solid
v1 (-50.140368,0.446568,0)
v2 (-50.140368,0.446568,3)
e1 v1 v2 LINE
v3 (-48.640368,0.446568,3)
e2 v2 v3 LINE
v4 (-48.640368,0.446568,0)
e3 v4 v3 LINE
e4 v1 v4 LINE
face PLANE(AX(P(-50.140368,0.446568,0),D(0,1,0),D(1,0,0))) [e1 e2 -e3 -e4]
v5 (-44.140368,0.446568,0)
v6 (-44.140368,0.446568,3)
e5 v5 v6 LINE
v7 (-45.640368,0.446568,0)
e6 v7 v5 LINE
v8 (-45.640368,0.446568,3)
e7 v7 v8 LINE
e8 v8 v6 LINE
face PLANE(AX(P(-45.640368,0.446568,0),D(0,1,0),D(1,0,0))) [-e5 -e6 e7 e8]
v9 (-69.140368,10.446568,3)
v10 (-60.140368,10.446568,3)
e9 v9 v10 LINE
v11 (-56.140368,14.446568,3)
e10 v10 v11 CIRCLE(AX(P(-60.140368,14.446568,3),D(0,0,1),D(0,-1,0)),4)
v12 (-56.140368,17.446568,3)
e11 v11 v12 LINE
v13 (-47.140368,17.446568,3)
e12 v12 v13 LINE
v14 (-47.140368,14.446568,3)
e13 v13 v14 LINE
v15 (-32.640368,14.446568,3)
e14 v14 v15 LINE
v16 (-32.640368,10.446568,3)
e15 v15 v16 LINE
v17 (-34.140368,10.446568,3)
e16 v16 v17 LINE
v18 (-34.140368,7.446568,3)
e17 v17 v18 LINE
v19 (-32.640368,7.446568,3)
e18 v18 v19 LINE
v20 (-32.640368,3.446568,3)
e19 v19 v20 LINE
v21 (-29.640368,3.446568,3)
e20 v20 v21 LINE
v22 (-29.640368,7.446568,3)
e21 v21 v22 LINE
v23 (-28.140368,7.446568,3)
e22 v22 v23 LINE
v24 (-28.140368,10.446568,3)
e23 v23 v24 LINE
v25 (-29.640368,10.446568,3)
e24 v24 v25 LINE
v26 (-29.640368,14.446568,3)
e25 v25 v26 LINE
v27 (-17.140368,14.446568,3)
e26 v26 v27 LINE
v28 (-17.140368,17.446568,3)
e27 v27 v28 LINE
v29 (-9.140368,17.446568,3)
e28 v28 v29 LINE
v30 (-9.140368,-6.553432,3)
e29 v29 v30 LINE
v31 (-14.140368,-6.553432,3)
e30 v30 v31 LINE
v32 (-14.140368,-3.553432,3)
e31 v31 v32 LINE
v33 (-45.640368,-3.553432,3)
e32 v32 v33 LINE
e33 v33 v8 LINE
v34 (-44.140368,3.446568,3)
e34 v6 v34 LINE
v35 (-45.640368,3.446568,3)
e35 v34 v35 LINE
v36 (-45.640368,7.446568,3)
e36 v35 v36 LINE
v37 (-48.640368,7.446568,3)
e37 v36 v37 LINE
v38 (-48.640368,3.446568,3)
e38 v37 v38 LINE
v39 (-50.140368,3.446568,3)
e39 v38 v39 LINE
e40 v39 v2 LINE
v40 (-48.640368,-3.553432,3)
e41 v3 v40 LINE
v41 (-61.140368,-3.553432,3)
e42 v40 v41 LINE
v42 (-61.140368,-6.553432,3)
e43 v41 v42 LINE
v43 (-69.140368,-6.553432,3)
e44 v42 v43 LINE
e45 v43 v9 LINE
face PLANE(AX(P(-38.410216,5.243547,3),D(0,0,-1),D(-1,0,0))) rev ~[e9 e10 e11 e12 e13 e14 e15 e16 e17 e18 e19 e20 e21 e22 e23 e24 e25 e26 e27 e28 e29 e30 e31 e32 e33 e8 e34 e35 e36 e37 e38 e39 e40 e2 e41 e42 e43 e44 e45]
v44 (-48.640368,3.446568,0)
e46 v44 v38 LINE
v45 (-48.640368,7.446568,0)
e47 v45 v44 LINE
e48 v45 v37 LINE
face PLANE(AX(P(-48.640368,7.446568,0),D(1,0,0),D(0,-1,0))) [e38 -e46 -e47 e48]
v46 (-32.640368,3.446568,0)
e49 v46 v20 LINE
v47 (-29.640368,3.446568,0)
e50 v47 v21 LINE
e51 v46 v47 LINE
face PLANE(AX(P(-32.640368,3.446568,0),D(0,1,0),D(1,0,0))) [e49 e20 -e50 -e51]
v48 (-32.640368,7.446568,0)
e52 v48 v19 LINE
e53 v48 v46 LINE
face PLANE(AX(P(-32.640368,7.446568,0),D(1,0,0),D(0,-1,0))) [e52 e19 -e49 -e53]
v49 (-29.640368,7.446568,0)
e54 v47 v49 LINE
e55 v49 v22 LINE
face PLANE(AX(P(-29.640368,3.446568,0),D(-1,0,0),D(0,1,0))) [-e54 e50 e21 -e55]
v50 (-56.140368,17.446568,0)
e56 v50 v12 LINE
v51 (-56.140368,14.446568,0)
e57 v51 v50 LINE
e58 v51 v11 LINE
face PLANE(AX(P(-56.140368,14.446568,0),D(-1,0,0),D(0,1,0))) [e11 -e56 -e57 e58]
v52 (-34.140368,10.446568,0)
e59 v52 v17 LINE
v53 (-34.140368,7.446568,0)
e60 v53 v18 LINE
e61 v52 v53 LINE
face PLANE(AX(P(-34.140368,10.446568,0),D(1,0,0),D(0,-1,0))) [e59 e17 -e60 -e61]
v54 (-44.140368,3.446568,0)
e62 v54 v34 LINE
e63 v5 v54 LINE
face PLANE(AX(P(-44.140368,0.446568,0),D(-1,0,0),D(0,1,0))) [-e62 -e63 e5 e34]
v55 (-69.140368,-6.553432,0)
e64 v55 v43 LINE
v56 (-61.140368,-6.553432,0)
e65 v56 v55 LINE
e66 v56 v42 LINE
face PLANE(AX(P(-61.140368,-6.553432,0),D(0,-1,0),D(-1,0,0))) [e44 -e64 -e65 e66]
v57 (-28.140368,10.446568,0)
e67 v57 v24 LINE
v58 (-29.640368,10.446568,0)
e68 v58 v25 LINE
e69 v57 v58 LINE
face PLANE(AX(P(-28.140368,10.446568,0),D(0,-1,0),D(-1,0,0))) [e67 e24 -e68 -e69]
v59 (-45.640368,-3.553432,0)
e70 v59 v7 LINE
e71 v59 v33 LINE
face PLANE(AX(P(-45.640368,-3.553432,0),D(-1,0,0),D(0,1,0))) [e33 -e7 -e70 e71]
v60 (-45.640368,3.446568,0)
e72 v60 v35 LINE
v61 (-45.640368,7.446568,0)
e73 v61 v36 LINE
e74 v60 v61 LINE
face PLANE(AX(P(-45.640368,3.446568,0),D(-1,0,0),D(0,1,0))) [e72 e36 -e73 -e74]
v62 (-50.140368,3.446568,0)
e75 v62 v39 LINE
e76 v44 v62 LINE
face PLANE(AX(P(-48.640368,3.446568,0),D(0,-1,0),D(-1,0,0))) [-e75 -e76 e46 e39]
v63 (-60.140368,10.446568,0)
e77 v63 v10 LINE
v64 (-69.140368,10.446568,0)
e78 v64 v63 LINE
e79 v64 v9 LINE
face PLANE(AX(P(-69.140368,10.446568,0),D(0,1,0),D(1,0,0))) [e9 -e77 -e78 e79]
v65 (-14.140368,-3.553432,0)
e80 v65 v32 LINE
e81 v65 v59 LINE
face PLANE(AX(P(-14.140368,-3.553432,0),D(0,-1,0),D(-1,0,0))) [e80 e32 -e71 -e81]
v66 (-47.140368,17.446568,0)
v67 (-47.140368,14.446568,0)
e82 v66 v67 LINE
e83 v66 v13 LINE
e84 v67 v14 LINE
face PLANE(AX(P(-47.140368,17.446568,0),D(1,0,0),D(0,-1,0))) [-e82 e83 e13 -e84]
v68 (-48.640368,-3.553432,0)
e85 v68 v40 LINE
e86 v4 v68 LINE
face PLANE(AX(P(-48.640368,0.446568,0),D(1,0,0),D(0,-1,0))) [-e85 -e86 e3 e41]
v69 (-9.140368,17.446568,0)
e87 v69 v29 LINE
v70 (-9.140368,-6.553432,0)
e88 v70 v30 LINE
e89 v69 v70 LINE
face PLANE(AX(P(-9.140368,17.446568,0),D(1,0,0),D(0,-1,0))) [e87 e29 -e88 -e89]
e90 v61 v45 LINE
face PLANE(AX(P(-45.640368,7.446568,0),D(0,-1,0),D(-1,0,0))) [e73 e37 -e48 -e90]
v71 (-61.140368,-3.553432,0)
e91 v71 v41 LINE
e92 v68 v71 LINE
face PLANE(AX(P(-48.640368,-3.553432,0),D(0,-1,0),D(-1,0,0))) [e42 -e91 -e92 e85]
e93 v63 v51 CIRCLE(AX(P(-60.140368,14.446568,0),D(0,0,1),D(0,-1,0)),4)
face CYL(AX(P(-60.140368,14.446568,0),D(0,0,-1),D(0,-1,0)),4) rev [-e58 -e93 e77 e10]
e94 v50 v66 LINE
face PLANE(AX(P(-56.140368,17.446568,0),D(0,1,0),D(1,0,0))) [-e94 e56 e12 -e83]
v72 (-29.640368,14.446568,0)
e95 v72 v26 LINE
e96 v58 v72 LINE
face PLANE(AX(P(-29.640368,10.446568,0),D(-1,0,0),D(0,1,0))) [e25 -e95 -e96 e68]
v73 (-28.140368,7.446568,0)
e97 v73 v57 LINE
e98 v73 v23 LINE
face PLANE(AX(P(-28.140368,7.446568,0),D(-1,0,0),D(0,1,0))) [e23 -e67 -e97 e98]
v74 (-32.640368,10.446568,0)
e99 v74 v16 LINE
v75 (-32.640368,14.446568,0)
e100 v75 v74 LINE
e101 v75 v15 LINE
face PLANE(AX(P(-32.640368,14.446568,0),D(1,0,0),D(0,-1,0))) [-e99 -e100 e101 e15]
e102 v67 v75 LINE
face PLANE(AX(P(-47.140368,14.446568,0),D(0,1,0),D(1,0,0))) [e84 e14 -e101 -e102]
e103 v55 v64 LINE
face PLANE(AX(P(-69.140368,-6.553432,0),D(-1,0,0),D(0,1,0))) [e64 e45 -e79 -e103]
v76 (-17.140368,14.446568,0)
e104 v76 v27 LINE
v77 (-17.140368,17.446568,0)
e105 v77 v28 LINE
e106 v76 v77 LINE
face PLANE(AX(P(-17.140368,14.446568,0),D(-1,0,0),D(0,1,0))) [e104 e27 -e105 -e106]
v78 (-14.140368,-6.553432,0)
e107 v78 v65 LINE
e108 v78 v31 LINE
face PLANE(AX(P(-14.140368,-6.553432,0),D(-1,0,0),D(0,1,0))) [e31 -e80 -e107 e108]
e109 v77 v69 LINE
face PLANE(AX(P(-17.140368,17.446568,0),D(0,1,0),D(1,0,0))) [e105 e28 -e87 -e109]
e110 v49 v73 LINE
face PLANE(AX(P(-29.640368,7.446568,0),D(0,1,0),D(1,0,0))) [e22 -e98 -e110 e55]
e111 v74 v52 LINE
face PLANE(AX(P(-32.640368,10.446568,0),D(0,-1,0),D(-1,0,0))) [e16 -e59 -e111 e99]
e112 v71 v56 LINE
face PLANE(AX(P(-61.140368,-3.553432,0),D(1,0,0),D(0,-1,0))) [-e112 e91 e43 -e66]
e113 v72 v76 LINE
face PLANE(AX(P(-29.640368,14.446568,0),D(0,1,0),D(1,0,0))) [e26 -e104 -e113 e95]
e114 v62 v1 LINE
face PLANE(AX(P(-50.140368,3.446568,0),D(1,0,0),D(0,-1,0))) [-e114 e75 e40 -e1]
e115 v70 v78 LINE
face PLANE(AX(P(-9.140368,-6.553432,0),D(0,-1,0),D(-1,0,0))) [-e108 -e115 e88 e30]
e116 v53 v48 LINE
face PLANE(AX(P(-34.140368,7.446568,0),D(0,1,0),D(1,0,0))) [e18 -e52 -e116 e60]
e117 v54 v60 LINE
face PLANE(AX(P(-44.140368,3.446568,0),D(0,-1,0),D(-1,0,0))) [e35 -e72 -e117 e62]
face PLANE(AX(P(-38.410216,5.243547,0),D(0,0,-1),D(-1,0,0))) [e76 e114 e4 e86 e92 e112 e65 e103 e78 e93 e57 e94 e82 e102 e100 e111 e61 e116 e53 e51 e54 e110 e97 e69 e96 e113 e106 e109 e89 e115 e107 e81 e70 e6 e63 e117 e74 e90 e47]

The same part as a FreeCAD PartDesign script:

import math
import FreeCAD as App
import Part
import Sketcher
from FreeCAD import Vector

doc = App.newDocument("Part")
params = doc.addObject("Spreadsheet::Sheet", "Params")
for row, (alias, value) in enumerate([
    ("sketch1_radius", "4 mm"),
    ("sketch1_width", "3 mm"),
    ("sketch1_width2", "9 mm"),
    ("sketch1_width3", "8 mm"),
    ("sketch1_width4", "5 mm"),
    ("pad1_length", "3 mm"),
], start=1):
    params.set(f"A{row}", alias)
    params.set(f"B{row}", "=" + value)
    params.setAlias(f"B{row}", alias)

body = doc.addObject("PartDesign::Body", "Body")

sketch1 = body.newObject("Sketcher::SketchObject", "Sketch")
sketch1.AttachmentSupport = (doc.getObject("XY_Plane"), [""])
sketch1.MapMode = "FlatFace"
sketch1.addGeometry([
    Part.LineSegment(Vector(-17.140368, 17.446568, 0), Vector(-17.140368, 14.446568, 0)),
    Part.LineSegment(Vector(-17.140368, 14.446568, 0), Vector(-29.640368, 14.446568, 0)),
    Part.LineSegment(Vector(-29.640368, 14.446568, 0), Vector(-29.640368, 10.446568, 0)),
    Part.LineSegment(Vector(-29.640368, 10.446568, 0), Vector(-28.140368, 10.446568, 0)),
    Part.LineSegment(Vector(-28.140368, 10.446568, 0), Vector(-28.140368, 7.446568, 0)),
    Part.LineSegment(Vector(-28.140368, 7.446568, 0), Vector(-29.640368, 7.446568, 0)),
    Part.LineSegment(Vector(-29.640368, 7.446568, 0), Vector(-29.640368, 3.446568, 0)),
    Part.LineSegment(Vector(-29.640368, 3.446568, 0), Vector(-32.640368, 3.446568, 0)),
    Part.LineSegment(Vector(-32.640368, 3.446568, 0), Vector(-32.640368, 7.446568, 0)),
    Part.LineSegment(Vector(-32.640368, 7.446568, 0), Vector(-34.140368, 7.446568, 0)),
    Part.LineSegment(Vector(-34.140368, 7.446568, 0), Vector(-34.140368, 10.446568, 0)),
    Part.LineSegment(Vector(-34.140368, 10.446568, 0), Vector(-32.640368, 10.446568, 0)),
    Part.LineSegment(Vector(-32.640368, 10.446568, 0), Vector(-32.640368, 14.446568, 0)),
    Part.LineSegment(Vector(-32.640368, 14.446568, 0), Vector(-47.140368, 14.446568, 0)),
    Part.LineSegment(Vector(-47.140368, 14.446568, 0), Vector(-47.140368, 17.446568, 0)),
    Part.LineSegment(Vector(-47.140368, 17.446568, 0), Vector(-56.140368, 17.446568, 0)),
    Part.LineSegment(Vector(-56.140368, 17.446568, 0), Vector(-56.140368, 14.446568, 0)),
    Part.ArcOfCircle(Part.Circle(Vector(-60.140368, 14.446568, 0), Vector(0, 0, 1), 4), math.radians(-90), math.radians(0)),
    Part.LineSegment(Vector(-60.140368, 10.446568, 0), Vector(-69.140368, 10.446568, 0)),
    Part.LineSegment(Vector(-69.140368, 10.446568, 0), Vector(-69.140368, -6.553432, 0)),
    Part.LineSegment(Vector(-69.140368, -6.553432, 0), Vector(-61.140368, -6.553432, 0)),
    Part.LineSegment(Vector(-61.140368, -6.553432, 0), Vector(-61.140368, -3.553432, 0)),
    Part.LineSegment(Vector(-61.140368, -3.553432, 0), Vector(-48.640368, -3.553432, 0)),
    Part.LineSegment(Vector(-48.640368, -3.553432, 0), Vector(-48.640368, 0.446568, 0)),
    Part.LineSegment(Vector(-48.640368, 0.446568, 0), Vector(-50.140368, 0.446568, 0)),
    Part.LineSegment(Vector(-50.140368, 0.446568, 0), Vector(-50.140368, 3.446568, 0)),
    Part.LineSegment(Vector(-50.140368, 3.446568, 0), Vector(-48.640368, 3.446568, 0)),
    Part.LineSegment(Vector(-48.640368, 3.446568, 0), Vector(-48.640368, 7.446568, 0)),
    Part.LineSegment(Vector(-48.640368, 7.446568, 0), Vector(-45.640368, 7.446568, 0)),
    Part.LineSegment(Vector(-45.640368, 7.446568, 0), Vector(-45.640368, 3.446568, 0)),
    Part.LineSegment(Vector(-45.640368, 3.446568, 0), Vector(-44.140368, 3.446568, 0)),
    Part.LineSegment(Vector(-44.140368, 3.446568, 0), Vector(-44.140368, 0.446568, 0)),
    Part.LineSegment(Vector(-44.140368, 0.446568, 0), Vector(-45.640368, 0.446568, 0)),
    Part.LineSegment(Vector(-45.640368, 0.446568, 0), Vector(-45.640368, -3.553432, 0)),
    Part.LineSegment(Vector(-45.640368, -3.553432, 0), Vector(-14.140368, -3.553432, 0)),
    Part.LineSegment(Vector(-14.140368, -3.553432, 0), Vector(-14.140368, -6.553432, 0)),
    Part.LineSegment(Vector(-14.140368, -6.553432, 0), Vector(-9.140368, -6.553432, 0)),
    Part.LineSegment(Vector(-9.140368, -6.553432, 0), Vector(-9.140368, 17.446568, 0)),
    Part.LineSegment(Vector(-9.140368, 17.446568, 0), Vector(-17.140368, 17.446568, 0)),
], False)
sketch1.addConstraint([
    Sketcher.Constraint("Coincident", 0, 2, 1, 1),
    Sketcher.Constraint("Coincident", 1, 2, 2, 1),
    Sketcher.Constraint("Coincident", 2, 2, 3, 1),
    Sketcher.Constraint("Coincident", 3, 2, 4, 1),
    Sketcher.Constraint("Coincident", 4, 2, 5, 1),
    Sketcher.Constraint("Coincident", 5, 2, 6, 1),
    Sketcher.Constraint("Coincident", 6, 2, 7, 1),
    Sketcher.Constraint("Coincident", 7, 2, 8, 1),
    Sketcher.Constraint("Coincident", 8, 2, 9, 1),
    Sketcher.Constraint("Coincident", 9, 2, 10, 1),
    Sketcher.Constraint("Coincident", 10, 2, 11, 1),
    Sketcher.Constraint("Coincident", 11, 2, 12, 1),
    Sketcher.Constraint("Coincident", 12, 2, 13, 1),
    Sketcher.Constraint("Coincident", 13, 2, 14, 1),
    Sketcher.Constraint("Coincident", 14, 2, 15, 1),
    Sketcher.Constraint("Coincident", 15, 2, 16, 1),
    Sketcher.Constraint("Tangent", 16, 2, 17, 2),
    Sketcher.Constraint("Tangent", 17, 1, 18, 1),
    Sketcher.Constraint("Coincident", 18, 2, 19, 1),
    Sketcher.Constraint("Coincident", 19, 2, 20, 1),
    Sketcher.Constraint("Coincident", 20, 2, 21, 1),
    Sketcher.Constraint("Coincident", 21, 2, 22, 1),
    Sketcher.Constraint("Coincident", 22, 2, 23, 1),
    Sketcher.Constraint("Coincident", 23, 2, 24, 1),
    Sketcher.Constraint("Coincident", 24, 2, 25, 1),
    Sketcher.Constraint("Coincident", 25, 2, 26, 1),
    Sketcher.Constraint("Coincident", 26, 2, 27, 1),
    Sketcher.Constraint("Coincident", 27, 2, 28, 1),
    Sketcher.Constraint("Coincident", 28, 2, 29, 1),
    Sketcher.Constraint("Coincident", 29, 2, 30, 1),
    Sketcher.Constraint("Coincident", 30, 2, 31, 1),
    Sketcher.Constraint("Coincident", 31, 2, 32, 1),
    Sketcher.Constraint("Coincident", 32, 2, 33, 1),
    Sketcher.Constraint("Coincident", 33, 2, 34, 1),
    Sketcher.Constraint("Coincident", 34, 2, 35, 1),
    Sketcher.Constraint("Coincident", 35, 2, 36, 1),
    Sketcher.Constraint("Coincident", 36, 2, 37, 1),
    Sketcher.Constraint("Coincident", 37, 2, 38, 1),
    Sketcher.Constraint("Coincident", 38, 2, 0, 1),
    Sketcher.Constraint("Vertical", 0),
    Sketcher.Constraint("Horizontal", 1),
    Sketcher.Constraint("Vertical", 2),
    Sketcher.Constraint("Horizontal", 3),
    Sketcher.Constraint("Vertical", 4),
    Sketcher.Constraint("Horizontal", 5),
    Sketcher.Constraint("Vertical", 6),
    Sketcher.Constraint("Horizontal", 7),
    Sketcher.Constraint("Vertical", 8),
    Sketcher.Constraint("Horizontal", 9),
    Sketcher.Constraint("Vertical", 10),
    Sketcher.Constraint("Horizontal", 11),
    Sketcher.Constraint("Vertical", 12),
    Sketcher.Constraint("Horizontal", 13),
    Sketcher.Constraint("Vertical", 14),
    Sketcher.Constraint("Horizontal", 15),
    Sketcher.Constraint("Vertical", 16),
    Sketcher.Constraint("Horizontal", 18),
    Sketcher.Constraint("Vertical", 19),
    Sketcher.Constraint("Horizontal", 20),
    Sketcher.Constraint("Vertical", 21),
    Sketcher.Constraint("Horizontal", 22),
    Sketcher.Constraint("Vertical", 23),
    Sketcher.Constraint("Horizontal", 24),
    Sketcher.Constraint("Vertical", 25),
    Sketcher.Constraint("Horizontal", 26),
    Sketcher.Constraint("Vertical", 27),
    Sketcher.Constraint("Horizontal", 28),
    Sketcher.Constraint("Vertical", 29),
    Sketcher.Constraint("Horizontal", 30),
    Sketcher.Constraint("Vertical", 31),
    Sketcher.Constraint("Horizontal", 32),
    Sketcher.Constraint("Vertical", 33),
    Sketcher.Constraint("Horizontal", 34),
    Sketcher.Constraint("Vertical", 35),
    Sketcher.Constraint("Horizontal", 36),
    Sketcher.Constraint("Vertical", 37),
    Sketcher.Constraint("Horizontal", 38),
    Sketcher.Constraint("Horizontal", 17, 3, 0, 2),
    Sketcher.Constraint("Horizontal", 5, 2, 8, 2),
    Sketcher.Constraint("Horizontal", 3, 2, 10, 2),
    Sketcher.Constraint("Horizontal", 1, 2, 12, 2),
    Sketcher.Constraint("Horizontal", 11, 2, 17, 1),
    Sketcher.Constraint("Horizontal", 7, 2, 25, 2),
    Sketcher.Constraint("Horizontal", 9, 2, 27, 2),
    Sketcher.Constraint("Horizontal", 26, 2, 29, 2),
    Sketcher.Constraint("Horizontal", 24, 2, 31, 2),
    Sketcher.Constraint("Horizontal", 22, 2, 33, 2),
    Sketcher.Constraint("Horizontal", 20, 2, 35, 2),
    Sketcher.Constraint("Horizontal", 15, 2, 37, 2),
    Sketcher.Constraint("Vertical", 2, 2, 5, 2),
    Sketcher.Constraint("Vertical", 8, 2, 11, 2),
    Sketcher.Constraint("Vertical", 23, 2, 26, 2),
    Sketcher.Constraint("Vertical", 29, 2, 32, 2),
    Sketcher.Constraint("Equal", 5, 9),
    Sketcher.Constraint("Equal", 15, 18),
    Sketcher.Constraint("Equal", 1, 22),
    Sketcher.Constraint("Equal", 11, 24),
    Sketcher.Constraint("Equal", 7, 28),
    Sketcher.Constraint("Equal", 26, 30),
    Sketcher.Constraint("Equal", 20, 38),
    Sketcher.Constraint("Equal", 28, 0),
    Sketcher.Constraint("Equal", 0, 4),
    Sketcher.Constraint("Equal", 2, 6),
    Sketcher.Constraint("Equal", 16, 21),
    Sketcher.Constraint("Equal", 12, 23),
    Sketcher.Constraint("Equal", 21, 25),
    Sketcher.Constraint("Radius", 17, 4.0),
    Sketcher.Constraint("DistanceX", 7, 2, 7, 1, 3.0),
    Sketcher.Constraint("DistanceX", 15, 2, 15, 1, 9.0),
    Sketcher.Constraint("DistanceX", 20, 1, 20, 2, 8.0),
    Sketcher.Constraint("DistanceX", 36, 1, 36, 2, 5.0),
    Sketcher.Constraint("DistanceX", 1, 2, 1, 1, 12.5),
    Sketcher.Constraint("DistanceX", 3, 1, 3, 2, 1.5),
    Sketcher.Constraint("DistanceX", 13, 2, 13, 1, 14.5),
    Sketcher.Constraint("DistanceX", 17, 3, -1, 1, 60.140368),
    Sketcher.Constraint("DistanceY", -1, 1, 17, 3, 14.446568),
])
sketch1.setExpression("Constraints[106]", "Params.sketch1_radius")
sketch1.setExpression("Constraints[107]", "Params.sketch1_width")
sketch1.setExpression("Constraints[108]", "Params.sketch1_width2")
sketch1.setExpression("Constraints[109]", "Params.sketch1_width3")
sketch1.setExpression("Constraints[110]", "Params.sketch1_width4")
pad1 = body.newObject("PartDesign::Pad", "Pad")
pad1.Profile = sketch1
pad1.setExpression("Length", "Params.pad1_length")

doc.recompute()
